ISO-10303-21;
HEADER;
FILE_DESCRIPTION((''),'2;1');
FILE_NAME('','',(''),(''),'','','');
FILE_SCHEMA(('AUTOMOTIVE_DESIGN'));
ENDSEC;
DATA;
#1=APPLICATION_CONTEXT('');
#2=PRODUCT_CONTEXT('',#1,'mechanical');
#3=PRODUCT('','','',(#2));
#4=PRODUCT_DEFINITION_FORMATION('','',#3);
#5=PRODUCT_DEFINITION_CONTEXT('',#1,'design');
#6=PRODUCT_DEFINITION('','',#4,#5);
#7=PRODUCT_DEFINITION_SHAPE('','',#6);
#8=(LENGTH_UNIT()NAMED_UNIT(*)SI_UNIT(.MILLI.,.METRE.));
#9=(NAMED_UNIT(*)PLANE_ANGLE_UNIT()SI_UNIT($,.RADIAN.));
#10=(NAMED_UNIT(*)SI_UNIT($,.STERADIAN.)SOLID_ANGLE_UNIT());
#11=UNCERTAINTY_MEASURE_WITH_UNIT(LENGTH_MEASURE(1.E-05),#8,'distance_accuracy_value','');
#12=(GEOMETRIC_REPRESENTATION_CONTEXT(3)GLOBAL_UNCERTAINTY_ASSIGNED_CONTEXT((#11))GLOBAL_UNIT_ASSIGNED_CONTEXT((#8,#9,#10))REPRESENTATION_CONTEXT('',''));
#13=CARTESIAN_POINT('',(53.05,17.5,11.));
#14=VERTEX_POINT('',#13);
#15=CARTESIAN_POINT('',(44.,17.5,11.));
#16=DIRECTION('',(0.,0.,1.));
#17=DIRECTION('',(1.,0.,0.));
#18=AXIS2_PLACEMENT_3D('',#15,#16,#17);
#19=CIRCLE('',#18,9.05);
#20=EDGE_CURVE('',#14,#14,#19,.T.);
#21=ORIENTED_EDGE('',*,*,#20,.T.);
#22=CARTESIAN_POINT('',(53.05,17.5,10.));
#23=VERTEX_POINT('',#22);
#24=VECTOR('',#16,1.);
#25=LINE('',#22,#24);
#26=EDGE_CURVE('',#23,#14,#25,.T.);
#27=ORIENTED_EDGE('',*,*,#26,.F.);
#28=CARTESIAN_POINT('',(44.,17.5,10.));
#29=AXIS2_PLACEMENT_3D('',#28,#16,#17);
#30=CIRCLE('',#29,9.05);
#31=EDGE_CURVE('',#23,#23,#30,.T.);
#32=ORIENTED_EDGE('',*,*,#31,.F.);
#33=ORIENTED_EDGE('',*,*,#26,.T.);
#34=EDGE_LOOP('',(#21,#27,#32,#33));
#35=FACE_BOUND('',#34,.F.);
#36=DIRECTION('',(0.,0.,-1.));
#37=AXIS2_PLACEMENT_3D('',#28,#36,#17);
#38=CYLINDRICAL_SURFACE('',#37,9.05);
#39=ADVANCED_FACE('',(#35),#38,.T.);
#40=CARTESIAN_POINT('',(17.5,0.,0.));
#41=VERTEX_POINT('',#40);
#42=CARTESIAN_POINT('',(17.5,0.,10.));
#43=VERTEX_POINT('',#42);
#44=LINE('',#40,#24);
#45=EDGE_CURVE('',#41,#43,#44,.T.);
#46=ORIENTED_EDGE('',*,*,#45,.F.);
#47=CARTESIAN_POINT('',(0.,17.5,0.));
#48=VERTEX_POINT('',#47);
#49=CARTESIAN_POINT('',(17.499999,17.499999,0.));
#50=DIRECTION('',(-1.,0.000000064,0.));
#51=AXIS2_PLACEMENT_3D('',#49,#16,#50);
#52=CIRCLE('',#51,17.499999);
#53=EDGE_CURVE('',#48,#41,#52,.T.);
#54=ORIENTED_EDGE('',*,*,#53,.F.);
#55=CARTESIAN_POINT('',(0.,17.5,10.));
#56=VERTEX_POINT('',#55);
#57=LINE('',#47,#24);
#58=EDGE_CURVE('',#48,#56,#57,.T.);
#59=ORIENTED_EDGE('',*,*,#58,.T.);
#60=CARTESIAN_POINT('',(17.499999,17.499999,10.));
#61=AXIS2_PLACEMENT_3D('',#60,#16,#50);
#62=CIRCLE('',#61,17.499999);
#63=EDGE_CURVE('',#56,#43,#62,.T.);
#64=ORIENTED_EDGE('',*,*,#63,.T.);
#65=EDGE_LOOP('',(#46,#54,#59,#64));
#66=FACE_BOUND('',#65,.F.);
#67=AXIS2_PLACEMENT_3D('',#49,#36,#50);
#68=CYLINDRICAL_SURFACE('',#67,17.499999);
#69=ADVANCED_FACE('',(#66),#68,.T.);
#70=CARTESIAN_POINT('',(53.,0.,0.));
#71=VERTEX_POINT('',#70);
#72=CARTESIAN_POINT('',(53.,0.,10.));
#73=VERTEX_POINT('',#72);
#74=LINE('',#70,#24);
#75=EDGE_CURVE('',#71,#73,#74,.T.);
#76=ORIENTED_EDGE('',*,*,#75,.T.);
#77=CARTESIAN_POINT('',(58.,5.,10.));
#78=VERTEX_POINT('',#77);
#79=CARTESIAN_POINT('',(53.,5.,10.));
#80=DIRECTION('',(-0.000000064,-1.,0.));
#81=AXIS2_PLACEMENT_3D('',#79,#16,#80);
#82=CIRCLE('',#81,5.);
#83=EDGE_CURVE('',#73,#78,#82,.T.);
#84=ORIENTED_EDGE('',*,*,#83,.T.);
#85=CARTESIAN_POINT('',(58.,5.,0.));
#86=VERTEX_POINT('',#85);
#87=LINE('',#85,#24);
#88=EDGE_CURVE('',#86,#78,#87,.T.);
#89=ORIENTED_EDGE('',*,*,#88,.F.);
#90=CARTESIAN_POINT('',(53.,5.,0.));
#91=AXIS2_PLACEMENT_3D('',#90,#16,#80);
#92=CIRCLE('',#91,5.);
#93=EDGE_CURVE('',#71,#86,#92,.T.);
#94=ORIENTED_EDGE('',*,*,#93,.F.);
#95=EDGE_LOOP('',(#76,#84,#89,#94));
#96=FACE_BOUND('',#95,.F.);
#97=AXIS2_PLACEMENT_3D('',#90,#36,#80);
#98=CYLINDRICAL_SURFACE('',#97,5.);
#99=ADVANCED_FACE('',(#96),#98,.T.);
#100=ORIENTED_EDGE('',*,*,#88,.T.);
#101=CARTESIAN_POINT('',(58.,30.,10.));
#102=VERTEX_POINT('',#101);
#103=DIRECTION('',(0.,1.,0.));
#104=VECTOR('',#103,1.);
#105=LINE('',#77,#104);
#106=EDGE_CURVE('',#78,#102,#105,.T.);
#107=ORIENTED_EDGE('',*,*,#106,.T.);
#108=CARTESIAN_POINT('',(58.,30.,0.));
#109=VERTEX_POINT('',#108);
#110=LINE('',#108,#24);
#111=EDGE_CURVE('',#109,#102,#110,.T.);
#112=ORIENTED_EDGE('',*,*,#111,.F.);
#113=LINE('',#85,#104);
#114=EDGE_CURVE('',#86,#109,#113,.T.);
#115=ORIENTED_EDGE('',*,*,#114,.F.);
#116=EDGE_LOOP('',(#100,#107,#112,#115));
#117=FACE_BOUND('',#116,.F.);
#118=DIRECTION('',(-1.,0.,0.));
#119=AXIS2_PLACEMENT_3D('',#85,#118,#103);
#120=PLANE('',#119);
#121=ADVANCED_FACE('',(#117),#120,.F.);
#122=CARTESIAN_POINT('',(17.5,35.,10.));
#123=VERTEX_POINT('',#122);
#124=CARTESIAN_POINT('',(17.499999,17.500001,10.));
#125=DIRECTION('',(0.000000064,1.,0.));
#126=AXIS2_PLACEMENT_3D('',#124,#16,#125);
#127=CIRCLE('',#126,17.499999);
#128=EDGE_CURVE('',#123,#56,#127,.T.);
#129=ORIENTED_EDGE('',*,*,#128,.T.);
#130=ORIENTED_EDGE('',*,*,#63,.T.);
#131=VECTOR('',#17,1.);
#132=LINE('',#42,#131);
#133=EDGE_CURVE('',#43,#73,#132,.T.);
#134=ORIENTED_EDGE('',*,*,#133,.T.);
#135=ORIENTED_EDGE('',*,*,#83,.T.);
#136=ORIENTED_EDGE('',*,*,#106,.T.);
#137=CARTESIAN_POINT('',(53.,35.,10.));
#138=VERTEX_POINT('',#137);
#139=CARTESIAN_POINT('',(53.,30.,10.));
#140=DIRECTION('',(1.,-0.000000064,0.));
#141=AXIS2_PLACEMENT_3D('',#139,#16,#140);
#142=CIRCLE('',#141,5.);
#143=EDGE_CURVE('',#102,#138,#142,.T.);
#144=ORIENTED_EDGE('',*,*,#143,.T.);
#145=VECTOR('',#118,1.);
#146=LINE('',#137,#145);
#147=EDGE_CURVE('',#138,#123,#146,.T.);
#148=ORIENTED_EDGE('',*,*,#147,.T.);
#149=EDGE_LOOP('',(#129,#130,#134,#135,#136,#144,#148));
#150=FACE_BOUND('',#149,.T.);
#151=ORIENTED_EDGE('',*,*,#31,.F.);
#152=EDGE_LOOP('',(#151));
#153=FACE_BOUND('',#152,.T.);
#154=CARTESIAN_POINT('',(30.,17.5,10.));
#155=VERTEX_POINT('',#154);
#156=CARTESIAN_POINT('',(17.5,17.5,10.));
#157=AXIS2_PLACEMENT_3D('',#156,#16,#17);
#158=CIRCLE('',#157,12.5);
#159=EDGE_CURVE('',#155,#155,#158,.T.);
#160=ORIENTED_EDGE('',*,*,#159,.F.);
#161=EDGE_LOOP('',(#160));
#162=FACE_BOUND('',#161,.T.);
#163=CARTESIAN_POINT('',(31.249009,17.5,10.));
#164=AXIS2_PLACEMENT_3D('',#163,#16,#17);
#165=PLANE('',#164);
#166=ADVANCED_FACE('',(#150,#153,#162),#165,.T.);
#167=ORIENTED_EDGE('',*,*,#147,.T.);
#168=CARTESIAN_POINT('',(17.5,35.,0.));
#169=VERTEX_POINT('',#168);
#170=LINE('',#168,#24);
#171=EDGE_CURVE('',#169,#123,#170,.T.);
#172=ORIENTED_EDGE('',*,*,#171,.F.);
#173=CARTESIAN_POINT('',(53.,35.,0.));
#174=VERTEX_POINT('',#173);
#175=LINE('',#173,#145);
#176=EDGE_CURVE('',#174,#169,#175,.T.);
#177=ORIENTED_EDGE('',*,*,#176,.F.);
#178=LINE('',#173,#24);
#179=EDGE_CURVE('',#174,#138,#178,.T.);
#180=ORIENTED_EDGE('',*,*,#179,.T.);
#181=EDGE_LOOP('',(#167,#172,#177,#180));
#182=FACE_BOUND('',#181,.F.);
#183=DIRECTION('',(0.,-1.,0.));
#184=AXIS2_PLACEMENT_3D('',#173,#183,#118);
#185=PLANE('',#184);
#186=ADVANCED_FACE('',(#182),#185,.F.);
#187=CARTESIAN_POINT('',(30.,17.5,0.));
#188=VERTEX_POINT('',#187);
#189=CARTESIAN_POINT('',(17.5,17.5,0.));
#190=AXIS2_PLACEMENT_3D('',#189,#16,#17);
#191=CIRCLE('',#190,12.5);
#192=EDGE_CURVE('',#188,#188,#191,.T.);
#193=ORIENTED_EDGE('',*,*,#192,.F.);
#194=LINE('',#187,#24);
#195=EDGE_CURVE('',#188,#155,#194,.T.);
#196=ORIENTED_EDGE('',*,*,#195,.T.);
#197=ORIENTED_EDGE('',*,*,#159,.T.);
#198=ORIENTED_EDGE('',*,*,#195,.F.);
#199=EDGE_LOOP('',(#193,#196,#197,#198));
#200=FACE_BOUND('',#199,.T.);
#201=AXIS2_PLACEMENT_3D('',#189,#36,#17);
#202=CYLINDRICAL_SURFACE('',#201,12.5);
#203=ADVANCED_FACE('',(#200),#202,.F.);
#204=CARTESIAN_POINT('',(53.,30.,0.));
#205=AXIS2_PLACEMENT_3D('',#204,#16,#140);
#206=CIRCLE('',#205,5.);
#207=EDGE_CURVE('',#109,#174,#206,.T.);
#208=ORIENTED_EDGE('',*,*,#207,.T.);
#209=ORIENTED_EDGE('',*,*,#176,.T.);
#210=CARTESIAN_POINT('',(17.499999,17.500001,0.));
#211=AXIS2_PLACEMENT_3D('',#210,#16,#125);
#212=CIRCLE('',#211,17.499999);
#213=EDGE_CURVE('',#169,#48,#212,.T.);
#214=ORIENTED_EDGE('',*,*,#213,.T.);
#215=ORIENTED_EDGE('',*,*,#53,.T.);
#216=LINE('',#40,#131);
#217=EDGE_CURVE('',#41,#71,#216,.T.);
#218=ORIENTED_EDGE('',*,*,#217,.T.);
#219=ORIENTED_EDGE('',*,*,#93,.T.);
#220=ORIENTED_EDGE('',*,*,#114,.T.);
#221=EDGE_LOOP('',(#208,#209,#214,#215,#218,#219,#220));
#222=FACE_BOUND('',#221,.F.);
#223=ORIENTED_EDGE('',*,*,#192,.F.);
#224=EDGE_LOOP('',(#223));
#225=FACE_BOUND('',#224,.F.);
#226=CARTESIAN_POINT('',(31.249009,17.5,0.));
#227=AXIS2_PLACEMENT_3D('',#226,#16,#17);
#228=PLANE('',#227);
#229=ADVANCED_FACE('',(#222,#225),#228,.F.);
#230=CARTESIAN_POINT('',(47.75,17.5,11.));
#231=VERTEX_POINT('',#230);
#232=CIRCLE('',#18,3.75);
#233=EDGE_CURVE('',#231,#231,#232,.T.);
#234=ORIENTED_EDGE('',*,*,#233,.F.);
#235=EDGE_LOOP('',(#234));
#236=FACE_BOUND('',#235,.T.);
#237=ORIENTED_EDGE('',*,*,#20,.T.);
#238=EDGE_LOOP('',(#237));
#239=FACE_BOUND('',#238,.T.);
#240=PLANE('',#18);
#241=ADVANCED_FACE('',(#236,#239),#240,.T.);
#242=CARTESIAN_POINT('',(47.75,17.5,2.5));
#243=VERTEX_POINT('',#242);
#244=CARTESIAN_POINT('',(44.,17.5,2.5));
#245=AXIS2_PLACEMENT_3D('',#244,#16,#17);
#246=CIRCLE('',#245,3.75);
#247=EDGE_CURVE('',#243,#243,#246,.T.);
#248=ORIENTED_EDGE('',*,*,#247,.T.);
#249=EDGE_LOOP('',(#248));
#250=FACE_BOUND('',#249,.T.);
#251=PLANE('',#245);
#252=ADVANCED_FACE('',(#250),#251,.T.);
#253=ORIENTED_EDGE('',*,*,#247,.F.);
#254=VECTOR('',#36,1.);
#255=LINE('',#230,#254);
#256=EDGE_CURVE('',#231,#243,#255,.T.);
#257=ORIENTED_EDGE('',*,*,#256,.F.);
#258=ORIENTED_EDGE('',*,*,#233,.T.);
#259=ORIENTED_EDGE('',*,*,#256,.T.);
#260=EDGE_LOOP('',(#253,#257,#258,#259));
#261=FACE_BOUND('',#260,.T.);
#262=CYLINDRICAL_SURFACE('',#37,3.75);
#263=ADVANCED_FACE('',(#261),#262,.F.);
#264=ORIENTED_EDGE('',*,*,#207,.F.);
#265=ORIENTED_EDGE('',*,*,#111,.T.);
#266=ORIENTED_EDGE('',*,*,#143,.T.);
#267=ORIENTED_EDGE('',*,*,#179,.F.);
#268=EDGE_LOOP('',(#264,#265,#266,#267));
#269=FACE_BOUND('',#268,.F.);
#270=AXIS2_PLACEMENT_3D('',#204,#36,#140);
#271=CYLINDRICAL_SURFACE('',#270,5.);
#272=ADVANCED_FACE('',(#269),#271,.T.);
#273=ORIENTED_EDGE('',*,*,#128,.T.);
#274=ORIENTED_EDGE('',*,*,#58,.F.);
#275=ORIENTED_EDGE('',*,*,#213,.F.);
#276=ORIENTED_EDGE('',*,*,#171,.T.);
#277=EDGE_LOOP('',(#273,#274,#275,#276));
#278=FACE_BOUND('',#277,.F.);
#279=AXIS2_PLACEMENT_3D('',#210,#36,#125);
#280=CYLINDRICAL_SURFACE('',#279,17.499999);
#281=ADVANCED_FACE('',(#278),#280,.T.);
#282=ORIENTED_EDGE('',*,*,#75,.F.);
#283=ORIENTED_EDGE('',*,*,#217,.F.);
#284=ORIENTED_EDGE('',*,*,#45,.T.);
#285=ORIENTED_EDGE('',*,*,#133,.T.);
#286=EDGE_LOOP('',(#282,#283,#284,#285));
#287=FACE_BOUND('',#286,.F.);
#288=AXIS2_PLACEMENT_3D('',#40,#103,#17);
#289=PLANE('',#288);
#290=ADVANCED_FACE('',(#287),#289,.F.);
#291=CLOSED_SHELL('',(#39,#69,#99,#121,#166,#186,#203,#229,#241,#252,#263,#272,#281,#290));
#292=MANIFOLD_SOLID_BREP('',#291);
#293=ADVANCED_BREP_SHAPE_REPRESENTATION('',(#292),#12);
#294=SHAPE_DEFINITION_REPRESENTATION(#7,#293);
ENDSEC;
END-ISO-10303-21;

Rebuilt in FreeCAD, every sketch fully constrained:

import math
import FreeCAD as App
import Part
import Sketcher

V = App.Vector

doc = App.newDocument("Part")
body = doc.addObject("PartDesign::Body", "Body")

# Sketch on XY plane
sketch1 = doc.addObject("Sketcher::SketchObject", "Sketch")
body.addObject(sketch1)
sketch1.AttachmentSupport = (doc.XY_Plane, [""])
sketch1.MapMode = "FlatFace"
sketch1.addGeometry([
    Part.ArcOfCircle(Part.Circle(V(17.5, 17.5, 0), V(0, 0, 1), 17.5), math.radians(180), math.radians(270)),  # 0
    Part.LineSegment(V(17.5, 0, 0), V(53, 0, 0)),  # 1
    Part.ArcOfCircle(Part.Circle(V(53, 5, 0), V(0, 0, 1), 5), math.radians(-90), math.radians(0)),  # 2
    Part.LineSegment(V(58, 5, 0), V(58, 30, 0)),  # 3
    Part.ArcOfCircle(Part.Circle(V(53, 30, 0), V(0, 0, 1), 5), math.radians(0), math.radians(90)),  # 4
    Part.LineSegment(V(53, 35, 0), V(17.5, 35, 0)),  # 5
    Part.ArcOfCircle(Part.Circle(V(17.5, 17.5, 0), V(0, 0, 1), 17.5), math.radians(90), math.radians(180)),  # 6
    Part.Circle(V(17.5, 17.5, 0), V(0, 0, 1), 12.5),  # 7
], False)
sketch1.addConstraint([
    Sketcher.Constraint("Tangent", 0, 2, 1, 1),
    Sketcher.Constraint("Tangent", 1, 2, 2, 1),
    Sketcher.Constraint("Tangent", 2, 2, 3, 1),
    Sketcher.Constraint("Tangent", 3, 2, 4, 1),
    Sketcher.Constraint("Tangent", 4, 2, 5, 1),
    Sketcher.Constraint("Tangent", 5, 2, 6, 1),
    Sketcher.Constraint("Tangent", 6, 2, 0, 1),
    Sketcher.Constraint("Horizontal", 1),
    Sketcher.Constraint("Vertical", 3),
    Sketcher.Constraint("Horizontal", 5),
    Sketcher.Constraint("Coincident", 7, 3, 0, 3),
    Sketcher.Constraint("Equal", 2, 4),
    Sketcher.Constraint("Equal", 0, 6),
    Sketcher.Constraint("PointOnObject", 0, 2, -1),
    Sketcher.Constraint("PointOnObject", 6, 2, -2),
    Sketcher.Constraint("Horizontal", 7, 3, 6, 2),
    Sketcher.Constraint("Diameter", 7, 25.0),
    Sketcher.Constraint("Radius", 2, 5.0),
    Sketcher.Constraint("Radius", 0, 17.499999),
    Sketcher.Constraint("DistanceX", 1, 1, 1, 2, 35.5),
])
pad1 = doc.addObject("PartDesign::Pad", "Pad")
body.addObject(pad1)
pad1.Profile = sketch1
pad1.Length = 10

# Sketch on XY plane
sketch2 = doc.addObject("Sketcher::SketchObject", "Sketch001")
body.addObject(sketch2)
sketch2.AttachmentSupport = (doc.XY_Plane, [""])
sketch2.MapMode = "FlatFace"
sketch2.AttachmentOffset = App.Placement(V(0, 0, 10), App.Rotation())
sketch2.addGeometry([
    Part.Circle(V(44, 17.5, 0), V(0, 0, 1), 9.1),
    Part.Circle(V(44, 17.5, 0), V(0, 0, 1), 3.8),
], False)
sketch2.addConstraint([
    Sketcher.Constraint("Coincident", 1, 3, 0, 3),
    Sketcher.Constraint("Diameter", 0, 18.1),
    Sketcher.Constraint("Diameter", 1, 7.5),
    Sketcher.Constraint("DistanceX", -1, 1, 0, 3, 44.0),
    Sketcher.Constraint("DistanceY", -1, 1, 0, 3, 17.5),
])
pad2 = doc.addObject("PartDesign::Pad", "Pad001")
body.addObject(pad2)
pad2.Profile = sketch2
pad2.Length = 1

# Sketch on XY plane
sketch3 = doc.addObject("Sketcher::SketchObject", "Sketch002")
body.addObject(sketch3)
sketch3.AttachmentSupport = (doc.XY_Plane, [""])
sketch3.MapMode = "FlatFace"
sketch3.AttachmentOffset = App.Placement(V(0, 0, 10), App.Rotation())
sketch3.addGeometry(Part.Circle(V(44, 17.5, 0), V(0, 0, 1), 3.8), False)
sketch3.addConstraint([
    Sketcher.Constraint("Diameter", 0, 7.5),
    Sketcher.Constraint("DistanceX", -1, 1, 0, 3, 44.0),
    Sketcher.Constraint("DistanceY", -1, 1, 0, 3, 17.5),
])
pocket1 = doc.addObject("PartDesign::Pocket", "Pocket")
body.addObject(pocket1)
pocket1.Profile = sketch3
pocket1.Length = 7.5

doc.recompute()
